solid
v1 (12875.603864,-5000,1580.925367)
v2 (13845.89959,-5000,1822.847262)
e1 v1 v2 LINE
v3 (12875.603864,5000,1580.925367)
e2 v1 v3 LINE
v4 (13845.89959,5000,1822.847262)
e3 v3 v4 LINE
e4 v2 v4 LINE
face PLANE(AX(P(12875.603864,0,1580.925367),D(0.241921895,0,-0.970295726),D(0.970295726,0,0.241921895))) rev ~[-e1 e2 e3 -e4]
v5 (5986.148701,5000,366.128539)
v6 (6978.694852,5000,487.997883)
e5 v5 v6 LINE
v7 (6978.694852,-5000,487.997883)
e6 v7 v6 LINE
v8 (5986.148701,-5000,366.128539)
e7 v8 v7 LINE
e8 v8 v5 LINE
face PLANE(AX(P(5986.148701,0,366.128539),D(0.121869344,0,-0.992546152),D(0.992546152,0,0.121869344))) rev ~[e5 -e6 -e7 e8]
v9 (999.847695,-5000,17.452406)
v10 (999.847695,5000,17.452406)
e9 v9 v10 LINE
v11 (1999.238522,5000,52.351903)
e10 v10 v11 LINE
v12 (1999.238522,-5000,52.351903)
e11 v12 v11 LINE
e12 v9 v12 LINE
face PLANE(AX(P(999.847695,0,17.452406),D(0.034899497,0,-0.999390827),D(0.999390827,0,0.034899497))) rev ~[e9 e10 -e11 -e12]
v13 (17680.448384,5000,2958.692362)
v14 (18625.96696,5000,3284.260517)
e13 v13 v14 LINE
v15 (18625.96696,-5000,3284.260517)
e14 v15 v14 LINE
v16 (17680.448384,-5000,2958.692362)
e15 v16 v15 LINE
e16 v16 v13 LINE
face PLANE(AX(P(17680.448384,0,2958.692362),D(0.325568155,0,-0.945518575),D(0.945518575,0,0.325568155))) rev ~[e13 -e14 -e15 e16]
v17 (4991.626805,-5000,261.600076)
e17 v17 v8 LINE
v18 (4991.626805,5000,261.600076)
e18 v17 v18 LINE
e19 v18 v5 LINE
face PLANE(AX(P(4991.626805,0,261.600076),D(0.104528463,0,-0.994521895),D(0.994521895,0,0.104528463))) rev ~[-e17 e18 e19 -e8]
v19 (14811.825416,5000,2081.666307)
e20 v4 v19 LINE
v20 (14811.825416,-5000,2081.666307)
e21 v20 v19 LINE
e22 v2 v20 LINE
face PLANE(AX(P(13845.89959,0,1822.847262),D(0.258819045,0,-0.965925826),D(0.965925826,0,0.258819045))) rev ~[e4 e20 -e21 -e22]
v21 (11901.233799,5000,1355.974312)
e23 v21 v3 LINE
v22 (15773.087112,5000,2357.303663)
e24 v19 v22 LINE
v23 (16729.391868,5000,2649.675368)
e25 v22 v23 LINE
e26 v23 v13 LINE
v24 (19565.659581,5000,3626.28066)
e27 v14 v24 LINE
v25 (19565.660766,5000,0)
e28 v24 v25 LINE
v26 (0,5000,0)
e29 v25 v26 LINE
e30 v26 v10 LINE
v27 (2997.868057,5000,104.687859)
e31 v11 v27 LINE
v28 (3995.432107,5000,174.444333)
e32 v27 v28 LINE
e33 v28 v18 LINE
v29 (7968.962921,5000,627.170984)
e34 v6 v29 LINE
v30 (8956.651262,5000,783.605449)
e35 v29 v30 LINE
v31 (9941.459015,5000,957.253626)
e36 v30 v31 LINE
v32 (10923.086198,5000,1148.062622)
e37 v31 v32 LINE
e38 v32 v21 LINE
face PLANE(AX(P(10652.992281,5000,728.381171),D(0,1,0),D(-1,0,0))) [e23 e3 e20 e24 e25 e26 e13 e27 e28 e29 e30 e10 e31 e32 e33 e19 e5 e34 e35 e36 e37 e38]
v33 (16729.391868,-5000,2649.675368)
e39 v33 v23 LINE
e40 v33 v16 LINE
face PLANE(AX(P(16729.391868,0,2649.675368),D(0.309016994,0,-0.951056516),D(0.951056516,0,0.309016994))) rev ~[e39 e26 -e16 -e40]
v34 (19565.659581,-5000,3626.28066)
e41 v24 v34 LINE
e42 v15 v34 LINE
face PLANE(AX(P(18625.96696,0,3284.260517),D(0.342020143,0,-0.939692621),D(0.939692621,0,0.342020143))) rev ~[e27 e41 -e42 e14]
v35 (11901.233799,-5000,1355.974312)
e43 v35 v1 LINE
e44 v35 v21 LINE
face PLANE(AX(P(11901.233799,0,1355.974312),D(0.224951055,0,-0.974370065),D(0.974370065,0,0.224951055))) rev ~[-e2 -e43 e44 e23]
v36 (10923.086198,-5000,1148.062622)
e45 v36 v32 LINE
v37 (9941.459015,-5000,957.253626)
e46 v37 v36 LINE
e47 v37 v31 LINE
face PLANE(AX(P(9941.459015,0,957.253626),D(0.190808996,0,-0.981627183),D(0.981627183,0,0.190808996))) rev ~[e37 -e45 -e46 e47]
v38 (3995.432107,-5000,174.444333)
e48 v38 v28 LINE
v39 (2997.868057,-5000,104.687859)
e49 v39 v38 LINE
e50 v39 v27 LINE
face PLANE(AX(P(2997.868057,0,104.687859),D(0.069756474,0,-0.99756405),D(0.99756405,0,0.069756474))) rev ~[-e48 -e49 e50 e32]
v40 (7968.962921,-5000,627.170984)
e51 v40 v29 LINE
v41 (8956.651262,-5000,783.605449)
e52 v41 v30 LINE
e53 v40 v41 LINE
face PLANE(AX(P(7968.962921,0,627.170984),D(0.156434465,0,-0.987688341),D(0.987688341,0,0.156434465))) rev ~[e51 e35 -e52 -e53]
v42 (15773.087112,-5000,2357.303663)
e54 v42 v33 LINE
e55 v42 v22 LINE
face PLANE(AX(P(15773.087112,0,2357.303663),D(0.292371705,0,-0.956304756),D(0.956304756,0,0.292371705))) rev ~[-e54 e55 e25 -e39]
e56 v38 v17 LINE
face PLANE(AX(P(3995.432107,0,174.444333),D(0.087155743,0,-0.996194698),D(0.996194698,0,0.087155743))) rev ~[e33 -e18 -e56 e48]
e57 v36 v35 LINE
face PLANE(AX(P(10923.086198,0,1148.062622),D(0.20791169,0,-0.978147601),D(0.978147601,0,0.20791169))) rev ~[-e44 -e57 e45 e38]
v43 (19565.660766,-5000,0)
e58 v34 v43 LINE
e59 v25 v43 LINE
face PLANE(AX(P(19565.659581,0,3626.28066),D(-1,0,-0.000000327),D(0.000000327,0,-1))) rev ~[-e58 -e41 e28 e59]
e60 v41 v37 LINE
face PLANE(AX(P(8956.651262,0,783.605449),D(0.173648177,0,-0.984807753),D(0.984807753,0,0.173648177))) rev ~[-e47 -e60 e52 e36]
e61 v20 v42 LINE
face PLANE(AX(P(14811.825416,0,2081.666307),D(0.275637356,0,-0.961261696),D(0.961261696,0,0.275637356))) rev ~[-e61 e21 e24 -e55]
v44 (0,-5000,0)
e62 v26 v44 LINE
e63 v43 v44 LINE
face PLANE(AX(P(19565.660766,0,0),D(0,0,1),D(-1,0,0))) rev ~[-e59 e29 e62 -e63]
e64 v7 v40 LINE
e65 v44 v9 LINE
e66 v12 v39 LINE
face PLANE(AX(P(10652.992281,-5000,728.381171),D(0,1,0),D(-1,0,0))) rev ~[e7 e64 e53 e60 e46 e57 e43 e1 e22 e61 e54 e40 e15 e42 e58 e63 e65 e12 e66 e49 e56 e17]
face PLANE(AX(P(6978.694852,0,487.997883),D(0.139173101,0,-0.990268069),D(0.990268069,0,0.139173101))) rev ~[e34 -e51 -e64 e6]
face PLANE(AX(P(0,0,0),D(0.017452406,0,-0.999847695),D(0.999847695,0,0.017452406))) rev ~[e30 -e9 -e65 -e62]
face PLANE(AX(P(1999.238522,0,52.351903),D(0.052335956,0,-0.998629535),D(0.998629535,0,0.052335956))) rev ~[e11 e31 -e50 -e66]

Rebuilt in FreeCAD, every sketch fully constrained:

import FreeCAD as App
import Part
import Sketcher
from FreeCAD import Vector
Q = App.Units.Quantity

doc = App.newDocument("Part")
body = doc.addObject("PartDesign::Body", "Body")

sketch1 = body.newObject("Sketcher::SketchObject", "Sketch")
sketch1.AttachmentSupport = (doc.getObject("XZ_Plane"), [""])
sketch1.MapMode = "FlatFace"
sketch1.addGeometry([
    Part.LineSegment(Vector(999.847695, 17.452406, 0), Vector(0, 0, 0)),
    Part.LineSegment(Vector(0, 0, 0), Vector(19565.660766, 0, 0)),
    Part.LineSegment(Vector(19565.660766, 0, 0), Vector(19565.659581, 3626.28066, 0)),
    Part.LineSegment(Vector(19565.659581, 3626.28066, 0), Vector(18625.96696, 3284.260517, 0)),
    Part.LineSegment(Vector(18625.96696, 3284.260517, 0), Vector(17680.448384, 2958.692362, 0)),
    Part.LineSegment(Vector(17680.448384, 2958.692362, 0), Vector(16729.391868, 2649.675368, 0)),
    Part.LineSegment(Vector(16729.391868, 2649.675368, 0), Vector(15773.087112, 2357.303663, 0)),
    Part.LineSegment(Vector(15773.087112, 2357.303663, 0), Vector(14811.825416, 2081.666307, 0)),
    Part.LineSegment(Vector(14811.825416, 2081.666307, 0), Vector(13845.89959, 1822.847262, 0)),
    Part.LineSegment(Vector(13845.89959, 1822.847262, 0), Vector(12875.603864, 1580.925367, 0)),
    Part.LineSegment(Vector(12875.603864, 1580.925367, 0), Vector(11901.233799, 1355.974312, 0)),
    Part.LineSegment(Vector(11901.233799, 1355.974312, 0), Vector(10923.086198, 1148.062622, 0)),
    Part.LineSegment(Vector(10923.086198, 1148.062622, 0), Vector(9941.459015, 957.253626, 0)),
    Part.LineSegment(Vector(9941.459015, 957.253626, 0), Vector(8956.651262, 783.605449, 0)),
    Part.LineSegment(Vector(8956.651262, 783.605449, 0), Vector(7968.962921, 627.170984, 0)),
    Part.LineSegment(Vector(7968.962921, 627.170984, 0), Vector(6978.694852, 487.997883, 0)),
    Part.LineSegment(Vector(6978.694852, 487.997883, 0), Vector(5986.148701, 366.128539, 0)),
    Part.LineSegment(Vector(5986.148701, 366.128539, 0), Vector(4991.626805, 261.600076, 0)),
    Part.LineSegment(Vector(4991.626805, 261.600076, 0), Vector(3995.432107, 174.444333, 0)),
    Part.LineSegment(Vector(3995.432107, 174.444333, 0), Vector(2997.868057, 104.687859, 0)),
    Part.LineSegment(Vector(2997.868057, 104.687859, 0), Vector(1999.238522, 52.351903, 0)),
    Part.LineSegment(Vector(1999.238522, 52.351903, 0), Vector(999.847695, 17.452406, 0)),
], False)
sketch1.addConstraint([
    Sketcher.Constraint("Coincident", 0, 2, 1, 1),
    Sketcher.Constraint("Coincident", 1, 2, 2, 1),
    Sketcher.Constraint("Coincident", 2, 2, 3, 1),
    Sketcher.Constraint("Coincident", 3, 2, 4, 1),
    Sketcher.Constraint("Coincident", 4, 2, 5, 1),
    Sketcher.Constraint("Coincident", 5, 2, 6, 1),
    Sketcher.Constraint("Coincident", 6, 2, 7, 1),
    Sketcher.Constraint("Coincident", 7, 2, 8, 1),
    Sketcher.Constraint("Coincident", 8, 2, 9, 1),
    Sketcher.Constraint("Coincident", 9, 2, 10, 1),
    Sketcher.Constraint("Coincident", 10, 2, 11, 1),
    Sketcher.Constraint("Coincident", 11, 2, 12, 1),
    Sketcher.Constraint("Coincident", 12, 2, 13, 1),
    Sketcher.Constraint("Coincident", 13, 2, 14, 1),
    Sketcher.Constraint("Coincident", 14, 2, 15, 1),
    Sketcher.Constraint("Coincident", 15, 2, 16, 1),
    Sketcher.Constraint("Coincident", 16, 2, 17, 1),
    Sketcher.Constraint("Coincident", 17, 2, 18, 1),
    Sketcher.Constraint("Coincident", 18, 2, 19, 1),
    Sketcher.Constraint("Coincident", 19, 2, 20, 1),
    Sketcher.Constraint("Coincident", 20, 2, 21, 1),
    Sketcher.Constraint("Coincident", 21, 2, 0, 1),
    Sketcher.Constraint("Horizontal", 1),
    Sketcher.Constraint("Coincident", 0, 2, -1, 1),
    Sketcher.Constraint("Equal", 0, 3),
    Sketcher.Constraint("Equal", 3, 4),
    Sketcher.Constraint("Equal", 4, 5),
    Sketcher.Constraint("Equal", 5, 6),
    Sketcher.Constraint("Equal", 6, 7),
    Sketcher.Constraint("Equal", 7, 8),
    Sketcher.Constraint("Equal", 8, 9),
    Sketcher.Constraint("Equal", 9, 10),
    Sketcher.Constraint("Equal", 10, 11),
    Sketcher.Constraint("Equal", 11, 12),
    Sketcher.Constraint("Equal", 12, 13),
    Sketcher.Constraint("Equal", 13, 14),
    Sketcher.Constraint("Equal", 14, 15),
    Sketcher.Constraint("Equal", 15, 16),
    Sketcher.Constraint("Equal", 16, 17),
    Sketcher.Constraint("Equal", 17, 18),
    Sketcher.Constraint("Equal", 18, 19),
    Sketcher.Constraint("Equal", 19, 20),
    Sketcher.Constraint("Equal", 20, 21),
    Sketcher.Constraint("Angle", 0, Q("-179 deg")),
    Sketcher.Constraint("Angle", 2, Q("90.000019 deg")),
    Sketcher.Constraint("Angle", 3, Q("-160 deg")),
    Sketcher.Constraint("Angle", 4, Q("-161 deg")),
    Sketcher.Constraint("Angle", 5, Q("-162 deg")),
    Sketcher.Constraint("Angle", 6, Q("-163 deg")),
    Sketcher.Constraint("Angle", 7, Q("-164 deg")),
    Sketcher.Constraint("Angle", 8, Q("-165 deg")),
    Sketcher.Constraint("Angle", 9, Q("-166 deg")),
    Sketcher.Constraint("Angle", 10, Q("-167 deg")),
    Sketcher.Constraint("Angle", 11, Q("-168 deg")),
    Sketcher.Constraint("Angle", 12, Q("-169 deg")),
    Sketcher.Constraint("Angle", 13, Q("-170 deg")),
    Sketcher.Constraint("Angle", 14, Q("-171 deg")),
    Sketcher.Constraint("Angle", 15, Q("-172 deg")),
    Sketcher.Constraint("Angle", 16, Q("-173 deg")),
    Sketcher.Constraint("Angle", 17, Q("-174 deg")),
    Sketcher.Constraint("Angle", 18, Q("-175 deg")),
    Sketcher.Constraint("Angle", 19, Q("-176 deg")),
    Sketcher.Constraint("Angle", 20, Q("-177 deg")),
    Sketcher.Constraint("Angle", 21, Q("-178 deg")),
    Sketcher.Constraint("Distance", 0, Q("1000 mm")),
])
pad1 = body.newObject("PartDesign::Pad", "Pad")
pad1.Profile = sketch1
pad1.Length = 10000
pad1.Midplane = True

doc.recompute()
